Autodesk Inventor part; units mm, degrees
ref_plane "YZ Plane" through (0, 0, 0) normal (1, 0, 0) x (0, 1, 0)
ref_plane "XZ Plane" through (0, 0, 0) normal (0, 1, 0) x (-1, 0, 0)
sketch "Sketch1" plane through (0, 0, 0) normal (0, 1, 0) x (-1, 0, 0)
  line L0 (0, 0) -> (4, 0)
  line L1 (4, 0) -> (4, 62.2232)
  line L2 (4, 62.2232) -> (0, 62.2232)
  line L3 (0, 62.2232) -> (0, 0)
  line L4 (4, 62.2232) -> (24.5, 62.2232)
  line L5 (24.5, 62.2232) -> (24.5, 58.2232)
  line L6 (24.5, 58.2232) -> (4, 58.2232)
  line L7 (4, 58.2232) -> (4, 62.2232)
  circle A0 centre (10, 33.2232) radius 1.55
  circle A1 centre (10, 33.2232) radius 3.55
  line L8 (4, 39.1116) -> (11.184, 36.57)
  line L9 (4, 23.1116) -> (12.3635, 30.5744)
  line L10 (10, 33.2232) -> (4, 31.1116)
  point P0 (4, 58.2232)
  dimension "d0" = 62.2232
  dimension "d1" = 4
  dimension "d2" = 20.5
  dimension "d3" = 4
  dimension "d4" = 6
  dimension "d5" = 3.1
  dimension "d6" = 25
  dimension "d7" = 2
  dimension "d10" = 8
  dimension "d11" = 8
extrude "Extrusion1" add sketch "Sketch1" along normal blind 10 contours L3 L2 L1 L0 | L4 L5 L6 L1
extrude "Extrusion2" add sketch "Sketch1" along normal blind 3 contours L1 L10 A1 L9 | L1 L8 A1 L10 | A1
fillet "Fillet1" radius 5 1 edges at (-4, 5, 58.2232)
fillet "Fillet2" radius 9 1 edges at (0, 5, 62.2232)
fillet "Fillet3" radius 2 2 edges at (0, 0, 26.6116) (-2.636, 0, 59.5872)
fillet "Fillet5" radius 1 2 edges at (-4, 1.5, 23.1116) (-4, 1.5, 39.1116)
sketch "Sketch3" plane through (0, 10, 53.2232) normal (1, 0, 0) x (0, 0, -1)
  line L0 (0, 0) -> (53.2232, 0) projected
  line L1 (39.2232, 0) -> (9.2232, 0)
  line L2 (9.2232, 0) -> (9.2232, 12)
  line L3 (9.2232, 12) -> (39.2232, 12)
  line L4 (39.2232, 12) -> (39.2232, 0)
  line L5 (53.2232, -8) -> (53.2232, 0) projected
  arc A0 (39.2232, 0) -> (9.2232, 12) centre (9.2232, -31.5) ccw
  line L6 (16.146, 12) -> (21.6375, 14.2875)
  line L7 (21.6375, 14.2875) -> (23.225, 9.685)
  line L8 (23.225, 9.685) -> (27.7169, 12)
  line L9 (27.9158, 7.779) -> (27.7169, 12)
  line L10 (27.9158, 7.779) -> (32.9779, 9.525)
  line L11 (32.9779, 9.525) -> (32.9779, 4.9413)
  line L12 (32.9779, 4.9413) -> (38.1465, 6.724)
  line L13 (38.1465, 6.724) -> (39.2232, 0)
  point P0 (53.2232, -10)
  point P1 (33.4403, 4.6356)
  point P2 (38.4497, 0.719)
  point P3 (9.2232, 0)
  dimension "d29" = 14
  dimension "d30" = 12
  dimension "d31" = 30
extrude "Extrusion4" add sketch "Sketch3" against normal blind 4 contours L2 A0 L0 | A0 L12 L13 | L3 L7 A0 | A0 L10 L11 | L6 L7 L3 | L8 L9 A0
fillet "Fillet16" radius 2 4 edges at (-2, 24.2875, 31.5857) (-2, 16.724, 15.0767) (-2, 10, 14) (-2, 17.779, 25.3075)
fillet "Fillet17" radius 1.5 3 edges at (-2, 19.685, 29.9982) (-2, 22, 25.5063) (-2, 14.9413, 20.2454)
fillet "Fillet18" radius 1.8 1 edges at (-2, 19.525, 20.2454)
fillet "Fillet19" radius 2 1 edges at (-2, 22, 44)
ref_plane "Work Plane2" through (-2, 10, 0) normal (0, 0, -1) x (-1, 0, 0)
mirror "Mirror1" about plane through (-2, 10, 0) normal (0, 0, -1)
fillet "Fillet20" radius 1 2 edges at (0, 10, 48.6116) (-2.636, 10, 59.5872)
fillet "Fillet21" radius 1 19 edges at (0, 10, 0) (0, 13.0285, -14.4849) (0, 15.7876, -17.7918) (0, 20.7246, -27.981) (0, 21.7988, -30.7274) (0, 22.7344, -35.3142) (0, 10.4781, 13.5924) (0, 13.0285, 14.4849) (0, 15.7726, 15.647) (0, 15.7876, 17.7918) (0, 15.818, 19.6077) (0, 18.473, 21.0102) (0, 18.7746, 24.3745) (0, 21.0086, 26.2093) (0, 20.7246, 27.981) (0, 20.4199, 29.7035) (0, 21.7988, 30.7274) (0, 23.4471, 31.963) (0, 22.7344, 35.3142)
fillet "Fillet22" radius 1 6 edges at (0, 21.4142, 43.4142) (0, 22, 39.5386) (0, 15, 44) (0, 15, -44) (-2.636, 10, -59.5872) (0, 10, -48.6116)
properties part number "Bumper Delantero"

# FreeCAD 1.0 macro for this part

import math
import FreeCAD as App
import Part
import Sketcher

V = App.Vector
Q = App.Units.Quantity


def edges_at(feature, points):
    """Names of the edges that pass closest to the given points."""
    edges = feature.Shape.Edges
    near = lambda p: min(range(len(edges)), key=lambda i: edges[i].distToShape(Part.Vertex(*p))[0])
    return sorted({f"Edge{near(p) + 1}" for p in points})

doc = App.newDocument("Part")
body = doc.addObject("PartDesign::Body", "Body")

# Sketch on XZ plane
sketch1 = body.newObject("Sketcher::SketchObject", "Sketch")
sketch1.AttachmentSupport = (doc.getObject("XZ_Plane"), [""])
sketch1.MapMode = "FlatFace"
sketch1.addGeometry(Part.LineSegment(V(0, 62.2, 0), V(0, 0, 0)), False)
sketch1.addGeometry(Part.LineSegment(V(0, 0, 0), V(-4, 0, 0)), False)
sketch1.addGeometry(Part.LineSegment(V(-4, 0, 0), V(-4, 58.2, 0)), False)
sketch1.addGeometry(Part.LineSegment(V(-4, 58.2, 0), V(-24.5, 58.2, 0)), False)
sketch1.addGeometry(Part.LineSegment(V(-24.5, 58.2, 0), V(-24.5, 62.2, 0)), False)
sketch1.addGeometry(Part.LineSegment(V(-24.5, 62.2, 0), V(0, 62.2, 0)), False)
sketch1.addConstraint(Sketcher.Constraint("Coincident", 0, 2, 1, 1))
sketch1.addConstraint(Sketcher.Constraint("Coincident", 1, 2, 2, 1))
sketch1.addConstraint(Sketcher.Constraint("Coincident", 2, 2, 3, 1))
sketch1.addConstraint(Sketcher.Constraint("Coincident", 3, 2, 4, 1))
sketch1.addConstraint(Sketcher.Constraint("Coincident", 4, 2, 5, 1))
sketch1.addConstraint(Sketcher.Constraint("Coincident", 5, 2, 0, 1))
sketch1.addConstraint(Sketcher.Constraint("Vertical", 0))
sketch1.addConstraint(Sketcher.Constraint("Horizontal", 1))
sketch1.addConstraint(Sketcher.Constraint("Vertical", 2))
sketch1.addConstraint(Sketcher.Constraint("Horizontal", 3))
sketch1.addConstraint(Sketcher.Constraint("Vertical", 4))
sketch1.addConstraint(Sketcher.Constraint("Horizontal", 5))
sketch1.addConstraint(Sketcher.Constraint("Coincident", 0, 2, -1, 1))
sketch1.addConstraint(Sketcher.Constraint("Equal", 1, 4))
sketch1.addConstraint(Sketcher.Constraint("DistanceX", 1, 2, 1, 1, 4.0))
sketch1.addConstraint(Sketcher.Constraint("DistanceX", 3, 2, 3, 1, 20.5))
sketch1.addConstraint(Sketcher.Constraint("DistanceY", 0, 2, 0, 1, 62.2232))
pad1 = body.newObject("PartDesign::Pad", "Pad")
pad1.Profile = sketch1
pad1.Length = 10
pad1.Reversed = True

# Sketch on XZ plane
sketch2 = body.newObject("Sketcher::SketchObject", "Sketch001")
sketch2.AttachmentSupport = (doc.getObject("XZ_Plane"), [""])
sketch2.MapMode = "FlatFace"
sketch2.addGeometry(Part.LineSegment(V(-4, 23.1, 0), V(-12.4, 30.6, 0)), False)
sketch2.addGeometry(Part.ArcOfCircle(Part.Circle(V(-10, 33.2, 0), V(0, 0, 1), 3.5), math.radians(109), math.radians(228)), False)
sketch2.addGeometry(Part.LineSegment(V(-11.2, 36.6, 0), V(-4, 39.1, 0)), False)
sketch2.addGeometry(Part.LineSegment(V(-4, 39.1, 0), V(-4, 23.1, 0)), False)
sketch2.addGeometry(Part.Circle(V(-10, 33.2, 0), V(0, 0, 1), 1.6), False)
sketch2.addConstraint(Sketcher.Constraint("Tangent", 0, 2, 1, 2))
sketch2.addConstraint(Sketcher.Constraint("Tangent", 1, 1, 2, 1))
sketch2.addConstraint(Sketcher.Constraint("Coincident", 2, 2, 3, 1))
sketch2.addConstraint(Sketcher.Constraint("Coincident", 3, 2, 0, 1))
sketch2.addConstraint(Sketcher.Constraint("Vertical", 3))
sketch2.addConstraint(Sketcher.Constraint("Coincident", 4, 3, 1, 3))
sketch2.addConstraint(Sketcher.Constraint("Diameter", 4, 3.1))
sketch2.addConstraint(Sketcher.Constraint("DistanceX", 2, 2, -1, 1, 4.0))
sketch2.addConstraint(Sketcher.Constraint("DistanceX", 1, 3, 2, 2, 6.0))
sketch2.addConstraint(Sketcher.Constraint("DistanceY", 3, 2, 3, 1, 16.0))
sketch2.addConstraint(Sketcher.Constraint("Radius", 1, 3.55))
sketch2.addConstraint(Sketcher.Constraint("DistanceY", -1, 1, 1, 1, 36.57))
sketch2.addConstraint(Sketcher.Constraint("Distance", 0, 11.209))
pad2 = body.newObject("PartDesign::Pad", "Pad001")
pad2.Profile = sketch2
pad2.Length = 3
pad2.Reversed = True
doc.recompute()

fillet = body.newObject("PartDesign::Fillet", "Fillet")
fillet.Base = (pad2, edges_at(pad2, [(-4, 5, 58.223)]))
fillet.Radius = 5
doc.recompute()

fillet2 = body.newObject("PartDesign::Fillet", "Fillet001")
fillet2.Base = (fillet, edges_at(fillet, [(0, 5, 62.223)]))
fillet2.Radius = 9
doc.recompute()

fillet3 = body.newObject("PartDesign::Fillet", "Fillet002")
fillet3.Base = (fillet2, edges_at(fillet2, [(0, 0, 26.612), (-2.636, 0, 59.587)]))
fillet3.Radius = 2
doc.recompute()

fillet4 = body.newObject("PartDesign::Fillet", "Fillet003")
fillet4.Base = (fillet3, edges_at(fillet3, [(-4, 1.5, 23.112), (-4, 1.5, 39.112)]))
fillet4.Radius = 1

# Sketch on YZ plane
sketch3 = body.newObject("Sketcher::SketchObject", "Sketch002")
sketch3.AttachmentSupport = (doc.getObject("YZ_Plane"), [""])
sketch3.MapMode = "FlatFace"
sketch3.addGeometry(Part.LineSegment(V(22, 44, 0), V(10, 44, 0)), False)
sketch3.addGeometry(Part.LineSegment(V(10, 44, 0), V(10, 14, 0)), False)
sketch3.addGeometry(Part.LineSegment(V(10, 14, 0), V(16.7, 15.1, 0)), False)
sketch3.addGeometry(Part.LineSegment(V(16.7, 15.1, 0), V(14.9, 20.2, 0)), False)
sketch3.addGeometry(Part.LineSegment(V(14.9, 20.2, 0), V(19.5, 20.2, 0)), False)
sketch3.addGeometry(Part.LineSegment(V(19.5, 20.2, 0), V(17.8, 25.3, 0)), False)
sketch3.addGeometry(Part.LineSegment(V(17.8, 25.3, 0), V(22, 25.5, 0)), False)
sketch3.addGeometry(Part.LineSegment(V(22, 25.5, 0), V(19.7, 30, 0)), False)
sketch3.addGeometry(Part.LineSegment(V(19.7, 30, 0), V(24.3, 31.6, 0)), False)
sketch3.addGeometry(Part.LineSegment(V(24.3, 31.6, 0), V(22, 37.1, 0)), False)
sketch3.addGeometry(Part.LineSegment(V(22, 37.1, 0), V(22, 44, 0)), False)
sketch3.addConstraint(Sketcher.Constraint("Coincident", 0, 2, 1, 1))
sketch3.addConstraint(Sketcher.Constraint("Coincident", 1, 2, 2, 1))
sketch3.addConstraint(Sketcher.Constraint("Coincident", 2, 2, 3, 1))
sketch3.addConstraint(Sketcher.Constraint("Coincident", 3, 2, 4, 1))
sketch3.addConstraint(Sketcher.Constraint("Coincident", 4, 2, 5, 1))
sketch3.addConstraint(Sketcher.Constraint("Coincident", 5, 2, 6, 1))
sketch3.addConstraint(Sketcher.Constraint("Coincident", 6, 2, 7, 1))
sketch3.addConstraint(Sketcher.Constraint("Coincident", 7, 2, 8, 1))
sketch3.addConstraint(Sketcher.Constraint("Coincident", 8, 2, 9, 1))
sketch3.addConstraint(Sketcher.Constraint("Coincident", 9, 2, 10, 1))
sketch3.addConstraint(Sketcher.Constraint("Coincident", 10, 2, 0, 1))
sketch3.addConstraint(Sketcher.Constraint("Horizontal", 0))
sketch3.addConstraint(Sketcher.Constraint("Vertical", 1))
sketch3.addConstraint(Sketcher.Constraint("Horizontal", 4))
sketch3.addConstraint(Sketcher.Constraint("Vertical", 10))
sketch3.addConstraint(Sketcher.Constraint("Parallel", 3, 5))
sketch3.addConstraint(Sketcher.Constraint("Perpendicular", 5, 8))
sketch3.addConstraint(Sketcher.Constraint("Vertical", 6, 2, 9, 2))
sketch3.addConstraint(Sketcher.Constraint("DistanceX", 0, 2, 0, 1, 12.0))
sketch3.addConstraint(Sketcher.Constraint("DistanceY", 1, 2, 1, 1, 30.0))
sketch3.addConstraint(Sketcher.Constraint("DistanceY", -1, 1, 1, 2, 14.0))
sketch3.addConstraint(Sketcher.Constraint("DistanceX", -1, 1, 0, 2, 10.0))
sketch3.addConstraint(Sketcher.Constraint("Angle", 3, Q("109.0298 deg")))
sketch3.addConstraint(Sketcher.Constraint("DistanceX", 4, 2, 7, 2, 0.16))
sketch3.addConstraint(Sketcher.Constraint("Distance", 9, 5.949))
sketch3.addConstraint(Sketcher.Constraint("DistanceX", 4, 1, 4, 2, 4.5837))
sketch3.addConstraint(Sketcher.Constraint("DistanceY", 10, 1, 10, 2, 6.9228))
sketch3.addConstraint(Sketcher.Constraint("DistanceX", -1, 1, 2, 2, 16.724))
sketch3.addConstraint(Sketcher.Constraint("DistanceX", -1, 1, 4, 2, 19.525))
sketch3.addConstraint(Sketcher.Constraint("DistanceX", -1, 1, 5, 2, 17.779))
sketch3.addConstraint(Sketcher.Constraint("DistanceY", 5, 2, 6, 2, 0.199))
sketch3.addConstraint(Sketcher.Constraint("DistanceY", 6, 2, 7, 2, 4.492))
sketch3.addConstraint(Sketcher.Constraint("DistanceY", 7, 2, 9, 2, 7.079))
pad3 = body.newObject("PartDesign::Pad", "Pad002")
pad3.Profile = sketch3
pad3.Length = 4
pad3.Reversed = True
doc.recompute()

fillet5 = body.newObject("PartDesign::Fillet", "Fillet004")
fillet5.Base = (pad3, edges_at(pad3, [
    (-2, 24.288, 31.586),
    (-2, 16.724, 15.077),
    (-2, 10, 14),
    (-2, 17.779, 25.308),
]))
fillet5.Radius = 2
doc.recompute()

fillet6 = body.newObject("PartDesign::Fillet", "Fillet005")
fillet6.Base = (fillet5, edges_at(fillet5, [(-2, 19.685, 29.998), (-2, 22, 25.506), (-2, 14.941, 20.245)]))
fillet6.Radius = 1.5
doc.recompute()

fillet7 = body.newObject("PartDesign::Fillet", "Fillet006")
fillet7.Base = (fillet6, edges_at(fillet6, [(-2, 19.525, 20.245)]))
fillet7.Radius = 1.8
doc.recompute()

fillet8 = body.newObject("PartDesign::Fillet", "Fillet007")
fillet8.Base = (fillet7, edges_at(fillet7, [(-2, 22, 44)]))
fillet8.Radius = 2
doc.recompute()

mirrored = body.newObject("PartDesign::Mirrored", "Mirrored")
mirrored.TransformMode = "Transform body"
mirrored.MirrorPlane = (doc.getObject("XY_Plane"), [""])
body.Tip = mirrored
doc.recompute()

fillet9 = body.newObject("PartDesign::Fillet", "Fillet008")
fillet9.Base = (mirrored, edges_at(mirrored, [(0, 10, 48.612), (-2.636, 10, 59.587)]))
fillet9.Radius = 1
doc.recompute()

fillet10 = body.newObject("PartDesign::Fillet", "Fillet009")
fillet10.Base = (fillet9, edges_at(fillet9, [
    (0, 10, 0),
    (0, 13.028, -14.485),
    (0, 15.788, -17.792),
    (0, 20.725, -27.981),
    (0, 21.799, -30.727),
    (0, 22.734, -35.314),
    (0, 10.478, 13.592),
    (0, 13.028, 14.485),
    (0, 15.773, 15.647),
    (0, 15.788, 17.792),
    (0, 15.818, 19.608),
    (0, 18.473, 21.01),
    (0, 18.775, 24.375),
    (0, 21.009, 26.209),
    (0, 20.725, 27.981),
    (0, 20.42, 29.703),
    (0, 21.799, 30.727),
    (0, 23.447, 31.963),
    (0, 22.734, 35.314),
]))
fillet10.Radius = 1
doc.recompute()

fillet11 = body.newObject("PartDesign::Fillet", "Fillet010")
fillet11.Base = (fillet10, edges_at(fillet10, [
    (0, 21.414, 43.414),
    (0, 22, 39.539),
    (0, 15, 44),
    (0, 15, -44),
    (-2.636, 10, -59.587),
    (0, 10, -48.612),
]))
fillet11.Radius = 1

doc.recompute()
